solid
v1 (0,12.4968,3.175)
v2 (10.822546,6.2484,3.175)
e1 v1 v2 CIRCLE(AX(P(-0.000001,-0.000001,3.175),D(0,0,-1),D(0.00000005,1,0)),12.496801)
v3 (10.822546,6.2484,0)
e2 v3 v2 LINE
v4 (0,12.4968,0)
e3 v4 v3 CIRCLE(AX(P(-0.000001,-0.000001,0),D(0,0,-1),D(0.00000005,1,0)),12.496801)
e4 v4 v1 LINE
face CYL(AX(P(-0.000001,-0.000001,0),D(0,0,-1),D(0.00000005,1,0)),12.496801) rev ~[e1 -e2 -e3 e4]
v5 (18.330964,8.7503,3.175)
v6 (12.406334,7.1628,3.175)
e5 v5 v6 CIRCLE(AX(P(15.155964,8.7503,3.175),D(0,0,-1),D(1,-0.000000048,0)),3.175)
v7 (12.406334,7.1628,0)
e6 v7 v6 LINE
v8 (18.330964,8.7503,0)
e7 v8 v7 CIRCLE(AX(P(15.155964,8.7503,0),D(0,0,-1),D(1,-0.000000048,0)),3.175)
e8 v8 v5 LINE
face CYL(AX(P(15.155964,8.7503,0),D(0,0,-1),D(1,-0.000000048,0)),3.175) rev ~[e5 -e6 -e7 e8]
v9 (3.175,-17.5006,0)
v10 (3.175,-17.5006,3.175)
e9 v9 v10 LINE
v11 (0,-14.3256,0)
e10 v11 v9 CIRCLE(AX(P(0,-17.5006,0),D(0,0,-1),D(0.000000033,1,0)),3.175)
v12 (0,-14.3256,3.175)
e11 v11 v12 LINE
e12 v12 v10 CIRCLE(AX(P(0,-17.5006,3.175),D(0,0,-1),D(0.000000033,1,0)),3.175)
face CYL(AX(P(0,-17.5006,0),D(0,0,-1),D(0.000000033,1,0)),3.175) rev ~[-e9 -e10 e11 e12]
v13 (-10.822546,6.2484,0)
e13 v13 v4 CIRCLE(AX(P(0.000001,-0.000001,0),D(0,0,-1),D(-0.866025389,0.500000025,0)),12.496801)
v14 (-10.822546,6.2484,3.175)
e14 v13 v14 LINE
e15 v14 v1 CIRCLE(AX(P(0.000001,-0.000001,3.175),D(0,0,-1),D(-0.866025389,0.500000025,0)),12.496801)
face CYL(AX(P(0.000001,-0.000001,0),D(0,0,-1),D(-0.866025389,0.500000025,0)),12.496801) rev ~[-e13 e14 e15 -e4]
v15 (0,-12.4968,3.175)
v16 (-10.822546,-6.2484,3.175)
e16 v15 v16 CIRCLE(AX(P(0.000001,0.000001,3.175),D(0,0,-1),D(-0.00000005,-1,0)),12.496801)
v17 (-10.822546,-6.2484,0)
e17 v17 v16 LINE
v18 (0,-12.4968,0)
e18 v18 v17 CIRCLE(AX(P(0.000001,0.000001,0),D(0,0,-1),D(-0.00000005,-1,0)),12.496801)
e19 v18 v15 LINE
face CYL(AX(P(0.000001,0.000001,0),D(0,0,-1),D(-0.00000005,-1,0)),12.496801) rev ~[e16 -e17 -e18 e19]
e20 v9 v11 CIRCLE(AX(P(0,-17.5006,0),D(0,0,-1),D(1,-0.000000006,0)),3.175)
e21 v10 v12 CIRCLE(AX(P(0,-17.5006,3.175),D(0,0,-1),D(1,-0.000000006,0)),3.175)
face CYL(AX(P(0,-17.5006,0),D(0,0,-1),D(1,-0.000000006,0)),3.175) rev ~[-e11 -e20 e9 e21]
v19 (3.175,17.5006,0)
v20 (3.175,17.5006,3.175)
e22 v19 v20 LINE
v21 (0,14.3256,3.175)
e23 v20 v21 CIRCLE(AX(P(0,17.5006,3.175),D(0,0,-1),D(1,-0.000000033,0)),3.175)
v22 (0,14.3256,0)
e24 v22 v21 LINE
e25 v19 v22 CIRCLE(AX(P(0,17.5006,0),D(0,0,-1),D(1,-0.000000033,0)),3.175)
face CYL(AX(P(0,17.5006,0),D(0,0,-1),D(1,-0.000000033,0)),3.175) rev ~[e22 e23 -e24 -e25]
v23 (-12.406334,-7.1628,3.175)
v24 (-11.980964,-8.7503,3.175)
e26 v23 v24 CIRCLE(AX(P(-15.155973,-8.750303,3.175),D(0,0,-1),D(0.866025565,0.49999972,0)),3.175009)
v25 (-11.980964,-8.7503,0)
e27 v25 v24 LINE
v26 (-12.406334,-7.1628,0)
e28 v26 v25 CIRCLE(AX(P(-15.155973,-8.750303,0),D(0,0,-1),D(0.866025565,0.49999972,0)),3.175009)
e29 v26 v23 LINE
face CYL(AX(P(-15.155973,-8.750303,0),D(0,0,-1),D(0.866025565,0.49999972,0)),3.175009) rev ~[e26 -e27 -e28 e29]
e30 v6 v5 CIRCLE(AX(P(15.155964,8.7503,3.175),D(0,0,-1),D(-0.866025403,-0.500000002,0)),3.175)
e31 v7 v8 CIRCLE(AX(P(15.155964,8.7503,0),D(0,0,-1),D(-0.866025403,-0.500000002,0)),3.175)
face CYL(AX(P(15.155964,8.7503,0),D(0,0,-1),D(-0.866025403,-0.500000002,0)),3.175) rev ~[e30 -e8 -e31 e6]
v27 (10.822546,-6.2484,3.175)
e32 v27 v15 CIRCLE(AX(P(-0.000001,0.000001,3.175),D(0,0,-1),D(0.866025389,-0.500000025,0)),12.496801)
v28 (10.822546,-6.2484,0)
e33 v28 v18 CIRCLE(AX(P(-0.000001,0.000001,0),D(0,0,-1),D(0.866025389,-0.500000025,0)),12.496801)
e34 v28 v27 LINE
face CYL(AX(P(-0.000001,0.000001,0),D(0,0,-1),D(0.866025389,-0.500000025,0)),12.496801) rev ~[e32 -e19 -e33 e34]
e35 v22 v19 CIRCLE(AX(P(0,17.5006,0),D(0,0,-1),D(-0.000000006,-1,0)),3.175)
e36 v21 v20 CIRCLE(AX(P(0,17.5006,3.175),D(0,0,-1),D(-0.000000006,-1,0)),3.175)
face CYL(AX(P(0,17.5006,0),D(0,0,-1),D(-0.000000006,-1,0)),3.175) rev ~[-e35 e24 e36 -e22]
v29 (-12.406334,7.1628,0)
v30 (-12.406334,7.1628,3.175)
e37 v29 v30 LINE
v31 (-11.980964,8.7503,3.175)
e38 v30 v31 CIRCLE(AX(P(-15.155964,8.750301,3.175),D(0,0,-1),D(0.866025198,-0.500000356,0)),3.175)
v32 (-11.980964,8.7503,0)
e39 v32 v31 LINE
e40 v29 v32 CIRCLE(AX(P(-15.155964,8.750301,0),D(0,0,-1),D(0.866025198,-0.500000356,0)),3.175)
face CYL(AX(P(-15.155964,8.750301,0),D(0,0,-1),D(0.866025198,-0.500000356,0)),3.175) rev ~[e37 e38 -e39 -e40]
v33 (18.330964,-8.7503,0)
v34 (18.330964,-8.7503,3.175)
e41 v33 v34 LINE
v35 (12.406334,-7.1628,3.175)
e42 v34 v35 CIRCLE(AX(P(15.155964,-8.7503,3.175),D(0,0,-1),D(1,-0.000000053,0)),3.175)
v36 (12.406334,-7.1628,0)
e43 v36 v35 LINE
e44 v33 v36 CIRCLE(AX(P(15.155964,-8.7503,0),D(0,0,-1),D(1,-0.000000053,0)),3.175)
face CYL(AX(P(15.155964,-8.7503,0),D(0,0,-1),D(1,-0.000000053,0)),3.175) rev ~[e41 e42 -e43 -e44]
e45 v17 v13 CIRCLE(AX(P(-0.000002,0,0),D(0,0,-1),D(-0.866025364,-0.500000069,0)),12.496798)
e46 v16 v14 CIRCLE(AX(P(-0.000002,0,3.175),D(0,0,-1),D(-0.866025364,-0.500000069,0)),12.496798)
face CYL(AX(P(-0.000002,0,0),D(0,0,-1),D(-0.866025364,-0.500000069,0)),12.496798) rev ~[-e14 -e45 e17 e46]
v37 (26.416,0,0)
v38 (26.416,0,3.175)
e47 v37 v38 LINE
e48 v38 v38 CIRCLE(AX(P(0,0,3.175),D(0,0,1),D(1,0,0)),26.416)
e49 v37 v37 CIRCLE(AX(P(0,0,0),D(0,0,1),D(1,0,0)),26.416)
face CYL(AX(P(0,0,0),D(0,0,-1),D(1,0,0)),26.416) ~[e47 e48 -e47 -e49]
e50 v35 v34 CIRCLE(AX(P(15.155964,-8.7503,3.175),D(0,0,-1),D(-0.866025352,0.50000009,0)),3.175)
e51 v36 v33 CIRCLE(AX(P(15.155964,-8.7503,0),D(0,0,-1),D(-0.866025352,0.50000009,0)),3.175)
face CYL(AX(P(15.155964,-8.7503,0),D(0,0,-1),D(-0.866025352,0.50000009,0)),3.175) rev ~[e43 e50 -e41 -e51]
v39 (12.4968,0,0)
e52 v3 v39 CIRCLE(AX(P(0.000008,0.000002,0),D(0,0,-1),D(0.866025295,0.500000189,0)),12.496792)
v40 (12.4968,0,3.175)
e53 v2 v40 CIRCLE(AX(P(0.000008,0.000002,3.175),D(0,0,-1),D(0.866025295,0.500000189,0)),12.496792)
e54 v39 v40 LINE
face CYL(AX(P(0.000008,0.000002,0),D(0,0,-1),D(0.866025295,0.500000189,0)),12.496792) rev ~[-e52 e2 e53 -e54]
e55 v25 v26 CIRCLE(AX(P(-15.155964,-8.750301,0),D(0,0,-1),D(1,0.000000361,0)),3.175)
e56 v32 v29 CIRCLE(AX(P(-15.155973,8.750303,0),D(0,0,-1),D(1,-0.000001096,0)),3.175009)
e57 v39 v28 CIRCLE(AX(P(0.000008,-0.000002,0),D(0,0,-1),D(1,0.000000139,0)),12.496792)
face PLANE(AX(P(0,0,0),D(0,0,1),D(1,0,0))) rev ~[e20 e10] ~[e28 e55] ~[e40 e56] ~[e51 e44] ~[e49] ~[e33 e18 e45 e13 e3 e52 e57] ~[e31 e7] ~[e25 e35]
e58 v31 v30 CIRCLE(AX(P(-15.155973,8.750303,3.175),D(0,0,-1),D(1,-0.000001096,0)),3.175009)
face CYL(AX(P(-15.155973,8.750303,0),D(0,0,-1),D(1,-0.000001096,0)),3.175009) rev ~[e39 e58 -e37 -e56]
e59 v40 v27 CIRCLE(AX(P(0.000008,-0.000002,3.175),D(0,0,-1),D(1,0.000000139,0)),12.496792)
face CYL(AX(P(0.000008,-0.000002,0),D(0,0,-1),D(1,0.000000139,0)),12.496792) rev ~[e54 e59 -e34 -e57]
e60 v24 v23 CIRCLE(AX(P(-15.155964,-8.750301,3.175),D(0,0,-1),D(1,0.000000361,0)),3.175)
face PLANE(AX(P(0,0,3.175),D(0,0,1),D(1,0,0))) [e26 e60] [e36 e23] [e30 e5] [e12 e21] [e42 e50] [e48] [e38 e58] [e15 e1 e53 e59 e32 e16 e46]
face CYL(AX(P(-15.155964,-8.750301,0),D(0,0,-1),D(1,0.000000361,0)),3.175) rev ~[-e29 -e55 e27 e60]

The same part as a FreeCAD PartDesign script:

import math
import FreeCAD as App
import Part
import Sketcher
from FreeCAD import Vector
Q = App.Units.Quantity

doc = App.newDocument("Part")
params = doc.addObject("Spreadsheet::Sheet", "Params")
for row, (alias, value) in enumerate([
    ("sketch1_diameter", "2.08 in"),
    ("sketch1_radius", "0.125 in"),
    ("sketch1_radius2", "0.492 in"),
    ("pad1_length", "0.125 in"),
], start=1):
    params.set(f"A{row}", alias)
    params.set(f"B{row}", "=" + value)
    params.setAlias(f"B{row}", alias)

body = doc.addObject("PartDesign::Body", "Body")

# Sketch on XY plane
sketch1 = body.newObject("Sketcher::SketchObject", "Sketch")
sketch1.AttachmentSupport = (doc.getObject("XY_Plane"), [""])
sketch1.MapMode = "FlatFace"
sketch1.addGeometry([
    Part.Circle(Vector(0, 0, 0), Vector(0, 0, 1), 26.4),  # 0
    Part.ArcOfCircle(Part.Circle(Vector(-15.2, -8.8, 0), Vector(0, 0, 1), 3.2), math.radians(0), math.radians(30)),  # 1
    Part.ArcOfCircle(Part.Circle(Vector(-15.2, -8.8, 0), Vector(0, 0, 1), 3.2), math.radians(30), math.radians(360)),  # 2
    Part.ArcOfCircle(Part.Circle(Vector(0, -17.5, 0), Vector(0, 0, 1), 3.2), math.radians(0), math.radians(90)),  # 3
    Part.ArcOfCircle(Part.Circle(Vector(0, -17.5, 0), Vector(0, 0, 1), 3.2), math.radians(90), math.radians(360)),  # 4
    Part.ArcOfCircle(Part.Circle(Vector(15.2, -8.8, 0), Vector(0, 0, 1), 3.2), math.radians(0), math.radians(150)),  # 5
    Part.ArcOfCircle(Part.Circle(Vector(15.2, -8.8, 0), Vector(0, 0, 1), 3.2), math.radians(150), math.radians(360)),  # 6
    Part.ArcOfCircle(Part.Circle(Vector(-15.2, 8.8, 0), Vector(0, 0, 1), 3.2), math.radians(0), math.radians(330)),  # 7
    Part.ArcOfCircle(Part.Circle(Vector(-15.2, 8.8, 0), Vector(0, 0, 1), 3.2), math.radians(-30), math.radians(0)),  # 8
    Part.ArcOfCircle(Part.Circle(Vector(0, 0, 0), Vector(0, 0, 1), 12.5), math.radians(30), math.radians(90)),  # 9
    Part.ArcOfCircle(Part.Circle(Vector(0, 0, 0), Vector(0, 0, 1), 12.5), math.radians(0), math.radians(30)),  # 10
    Part.ArcOfCircle(Part.Circle(Vector(0, 0, 0), Vector(0, 0, 1), 12.5), math.radians(-30), math.radians(0)),  # 11
    Part.ArcOfCircle(Part.Circle(Vector(0, 0, 0), Vector(0, 0, 1), 12.5), math.radians(-90), math.radians(-30)),  # 12
    Part.ArcOfCircle(Part.Circle(Vector(0, 0, 0), Vector(0, 0, 1), 12.5), math.radians(-150), math.radians(-90)),  # 13
    Part.ArcOfCircle(Part.Circle(Vector(0, 0, 0), Vector(0, 0, 1), 12.5), math.radians(150), math.radians(210)),  # 14
    Part.ArcOfCircle(Part.Circle(Vector(0, 0, 0), Vector(0, 0, 1), 12.5), math.radians(90), math.radians(150)),  # 15
    Part.ArcOfCircle(Part.Circle(Vector(15.2, 8.8, 0), Vector(0, 0, 1), 3.2), math.radians(0), math.radians(210)),  # 16
    Part.ArcOfCircle(Part.Circle(Vector(15.2, 8.8, 0), Vector(0, 0, 1), 3.2), math.radians(-150), math.radians(0)),  # 17
    Part.ArcOfCircle(Part.Circle(Vector(0, 17.5, 0), Vector(0, 0, 1), 3.2), math.radians(0), math.radians(270)),  # 18
    Part.ArcOfCircle(Part.Circle(Vector(0, 17.5, 0), Vector(0, 0, 1), 3.2), math.radians(-90), math.radians(0)),  # 19
], False)
sketch1.addConstraint([
    Sketcher.Constraint("Tangent", 1, 1, 2, 2),
    Sketcher.Constraint("Coincident", 2, 1, 1, 2),
    Sketcher.Constraint("Tangent", 3, 1, 4, 2),
    Sketcher.Constraint("Coincident", 4, 1, 3, 2),
    Sketcher.Constraint("Tangent", 5, 1, 6, 2),
    Sketcher.Constraint("Coincident", 6, 1, 5, 2),
    Sketcher.Constraint("Tangent", 7, 1, 8, 2),
    Sketcher.Constraint("Coincident", 8, 1, 7, 2),
    Sketcher.Constraint("Tangent", 9, 1, 10, 2),
    Sketcher.Constraint("Tangent", 10, 1, 11, 2),
    Sketcher.Constraint("Tangent", 11, 1, 12, 2),
    Sketcher.Constraint("Tangent", 12, 1, 13, 2),
    Sketcher.Constraint("Tangent", 13, 1, 14, 2),
    Sketcher.Constraint("Tangent", 14, 1, 15, 2),
    Sketcher.Constraint("Tangent", 15, 1, 9, 2),
    Sketcher.Constraint("Tangent", 16, 1, 17, 2),
    Sketcher.Constraint("Coincident", 17, 1, 16, 2),
    Sketcher.Constraint("Tangent", 18, 1, 19, 2),
    Sketcher.Constraint("Coincident", 19, 1, 18, 2),
    Sketcher.Constraint("Coincident", 0, 3, -1, 1),
    Sketcher.Constraint("Coincident", 9, 3, -1, 1),
    Sketcher.Constraint("Coincident", 11, 3, -1, 1),
    Sketcher.Constraint("Coincident", 13, 3, -1, 1),
    Sketcher.Constraint("Equal", 2, 3),
    Sketcher.Constraint("Equal", 4, 5),
    Sketcher.Constraint("Equal", 6, 7),
    Sketcher.Constraint("Equal", 7, 16),
    Sketcher.Constraint("Equal", 17, 18),
    Sketcher.Constraint("Symmetric", 5, 3, 7, 3, -1, 1),
    Sketcher.Constraint("Symmetric", 1, 3, 16, 3, -1, 1),
    Sketcher.Constraint("Symmetric", 3, 3, 18, 3, -1, 1),
    Sketcher.Constraint("Symmetric", 1, 3, 5, 3, -2),
    Sketcher.Constraint("Symmetric", 3, 1, 18, 1, -1),
    Sketcher.Constraint("PointOnObject", 4, 1, -2),
    Sketcher.Constraint("PointOnObject", 10, 1, -1),
    Sketcher.Constraint("PointOnObject", 12, 1, -2),
    Sketcher.Constraint("PointOnObject", 15, 1, -2),
    Sketcher.Constraint("PointOnObject", 19, 1, -2),
    Sketcher.Constraint("Horizontal", 6, 3, 1, 1),
    Sketcher.Constraint("Horizontal", 4, 3, 3, 1),
    Sketcher.Constraint("Horizontal", 1, 1, 5, 1),
    Sketcher.Constraint("Horizontal", 2, 1, 6, 1),
    Sketcher.Constraint("Horizontal", 17, 3, 7, 1),
    Sketcher.Constraint("Horizontal", 11, 1, 13, 1),
    Sketcher.Constraint("Horizontal", 9, 1, 14, 1),
    Sketcher.Constraint("Horizontal", 7, 1, 16, 1),
    Sketcher.Constraint("Horizontal", 8, 1, 17, 1),
    Sketcher.Constraint("Vertical", 2, 1, 8, 1),
    Sketcher.Constraint("Vertical", 9, 1, 11, 1),
    Sketcher.Constraint("Diameter", 0, Q("2.08 in")),
    Sketcher.Constraint("Radius", 2, Q("0.125 in")),
    Sketcher.Constraint("Radius", 9, Q("0.492 in")),
    Sketcher.Constraint("DistanceY", 3, 3, -1, 1, Q("0.689 in")),
    Sketcher.Constraint("DistanceY", 2, 1, -1, 1, Q("0.282 in")),
    Sketcher.Constraint("DistanceY", -1, 1, 9, 1, Q("0.246 in")),
    Sketcher.Constraint("DistanceY", 2, 3, 7, 3, Q("0.6890001 in")),
    Sketcher.Constraint("DistanceX", 2, 3, 5, 3, Q("30.311928 mm")),
])
sketch1.setExpression("Constraints[49]", "Params.sketch1_diameter")
sketch1.setExpression("Constraints[50]", "Params.sketch1_radius")
sketch1.setExpression("Constraints[51]", "Params.sketch1_radius2")
pad1 = body.newObject("PartDesign::Pad", "Pad")
pad1.Profile = sketch1
pad1.setExpression("Length", "Params.pad1_length")

doc.recompute()
